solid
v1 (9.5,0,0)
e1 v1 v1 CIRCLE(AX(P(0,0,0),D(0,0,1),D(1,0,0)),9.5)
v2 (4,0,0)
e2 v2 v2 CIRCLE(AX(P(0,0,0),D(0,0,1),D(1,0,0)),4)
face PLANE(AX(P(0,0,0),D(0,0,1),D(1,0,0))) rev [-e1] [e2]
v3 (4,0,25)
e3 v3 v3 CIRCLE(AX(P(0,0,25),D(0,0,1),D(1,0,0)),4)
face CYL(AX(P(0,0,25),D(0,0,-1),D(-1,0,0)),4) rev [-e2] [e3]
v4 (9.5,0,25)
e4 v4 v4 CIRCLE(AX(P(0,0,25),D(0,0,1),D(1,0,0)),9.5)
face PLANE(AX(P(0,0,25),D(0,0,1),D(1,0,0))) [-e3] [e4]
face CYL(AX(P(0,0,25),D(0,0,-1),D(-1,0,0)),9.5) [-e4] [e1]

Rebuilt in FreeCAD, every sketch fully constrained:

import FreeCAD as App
import Part
import Sketcher
from FreeCAD import Vector

doc = App.newDocument("Part")
body = doc.addObject("PartDesign::Body", "Body")

sketch1 = body.newObject("Sketcher::SketchObject", "Sketch")
sketch1.AttachmentSupport = (doc.getObject("XY_Plane"), [""])
sketch1.MapMode = "FlatFace"
sketch1.addGeometry([
    Part.Circle(Vector(0, 0, 0), Vector(0, 0, 1), 9.5),
    Part.Circle(Vector(0, 0, 0), Vector(0, 0, 1), 4),
], False)
sketch1.addConstraint([
    Sketcher.Constraint("Coincident", 0, 3, -1, 1),
    Sketcher.Constraint("Coincident", 1, 3, -1, 1),
    Sketcher.Constraint("Diameter", 0, 19.0),
    Sketcher.Constraint("Diameter", 1, 8.0),
])
pad1 = body.newObject("PartDesign::Pad", "Pad")
pad1.Profile = sketch1
pad1.Length = 25

doc.recompute()
